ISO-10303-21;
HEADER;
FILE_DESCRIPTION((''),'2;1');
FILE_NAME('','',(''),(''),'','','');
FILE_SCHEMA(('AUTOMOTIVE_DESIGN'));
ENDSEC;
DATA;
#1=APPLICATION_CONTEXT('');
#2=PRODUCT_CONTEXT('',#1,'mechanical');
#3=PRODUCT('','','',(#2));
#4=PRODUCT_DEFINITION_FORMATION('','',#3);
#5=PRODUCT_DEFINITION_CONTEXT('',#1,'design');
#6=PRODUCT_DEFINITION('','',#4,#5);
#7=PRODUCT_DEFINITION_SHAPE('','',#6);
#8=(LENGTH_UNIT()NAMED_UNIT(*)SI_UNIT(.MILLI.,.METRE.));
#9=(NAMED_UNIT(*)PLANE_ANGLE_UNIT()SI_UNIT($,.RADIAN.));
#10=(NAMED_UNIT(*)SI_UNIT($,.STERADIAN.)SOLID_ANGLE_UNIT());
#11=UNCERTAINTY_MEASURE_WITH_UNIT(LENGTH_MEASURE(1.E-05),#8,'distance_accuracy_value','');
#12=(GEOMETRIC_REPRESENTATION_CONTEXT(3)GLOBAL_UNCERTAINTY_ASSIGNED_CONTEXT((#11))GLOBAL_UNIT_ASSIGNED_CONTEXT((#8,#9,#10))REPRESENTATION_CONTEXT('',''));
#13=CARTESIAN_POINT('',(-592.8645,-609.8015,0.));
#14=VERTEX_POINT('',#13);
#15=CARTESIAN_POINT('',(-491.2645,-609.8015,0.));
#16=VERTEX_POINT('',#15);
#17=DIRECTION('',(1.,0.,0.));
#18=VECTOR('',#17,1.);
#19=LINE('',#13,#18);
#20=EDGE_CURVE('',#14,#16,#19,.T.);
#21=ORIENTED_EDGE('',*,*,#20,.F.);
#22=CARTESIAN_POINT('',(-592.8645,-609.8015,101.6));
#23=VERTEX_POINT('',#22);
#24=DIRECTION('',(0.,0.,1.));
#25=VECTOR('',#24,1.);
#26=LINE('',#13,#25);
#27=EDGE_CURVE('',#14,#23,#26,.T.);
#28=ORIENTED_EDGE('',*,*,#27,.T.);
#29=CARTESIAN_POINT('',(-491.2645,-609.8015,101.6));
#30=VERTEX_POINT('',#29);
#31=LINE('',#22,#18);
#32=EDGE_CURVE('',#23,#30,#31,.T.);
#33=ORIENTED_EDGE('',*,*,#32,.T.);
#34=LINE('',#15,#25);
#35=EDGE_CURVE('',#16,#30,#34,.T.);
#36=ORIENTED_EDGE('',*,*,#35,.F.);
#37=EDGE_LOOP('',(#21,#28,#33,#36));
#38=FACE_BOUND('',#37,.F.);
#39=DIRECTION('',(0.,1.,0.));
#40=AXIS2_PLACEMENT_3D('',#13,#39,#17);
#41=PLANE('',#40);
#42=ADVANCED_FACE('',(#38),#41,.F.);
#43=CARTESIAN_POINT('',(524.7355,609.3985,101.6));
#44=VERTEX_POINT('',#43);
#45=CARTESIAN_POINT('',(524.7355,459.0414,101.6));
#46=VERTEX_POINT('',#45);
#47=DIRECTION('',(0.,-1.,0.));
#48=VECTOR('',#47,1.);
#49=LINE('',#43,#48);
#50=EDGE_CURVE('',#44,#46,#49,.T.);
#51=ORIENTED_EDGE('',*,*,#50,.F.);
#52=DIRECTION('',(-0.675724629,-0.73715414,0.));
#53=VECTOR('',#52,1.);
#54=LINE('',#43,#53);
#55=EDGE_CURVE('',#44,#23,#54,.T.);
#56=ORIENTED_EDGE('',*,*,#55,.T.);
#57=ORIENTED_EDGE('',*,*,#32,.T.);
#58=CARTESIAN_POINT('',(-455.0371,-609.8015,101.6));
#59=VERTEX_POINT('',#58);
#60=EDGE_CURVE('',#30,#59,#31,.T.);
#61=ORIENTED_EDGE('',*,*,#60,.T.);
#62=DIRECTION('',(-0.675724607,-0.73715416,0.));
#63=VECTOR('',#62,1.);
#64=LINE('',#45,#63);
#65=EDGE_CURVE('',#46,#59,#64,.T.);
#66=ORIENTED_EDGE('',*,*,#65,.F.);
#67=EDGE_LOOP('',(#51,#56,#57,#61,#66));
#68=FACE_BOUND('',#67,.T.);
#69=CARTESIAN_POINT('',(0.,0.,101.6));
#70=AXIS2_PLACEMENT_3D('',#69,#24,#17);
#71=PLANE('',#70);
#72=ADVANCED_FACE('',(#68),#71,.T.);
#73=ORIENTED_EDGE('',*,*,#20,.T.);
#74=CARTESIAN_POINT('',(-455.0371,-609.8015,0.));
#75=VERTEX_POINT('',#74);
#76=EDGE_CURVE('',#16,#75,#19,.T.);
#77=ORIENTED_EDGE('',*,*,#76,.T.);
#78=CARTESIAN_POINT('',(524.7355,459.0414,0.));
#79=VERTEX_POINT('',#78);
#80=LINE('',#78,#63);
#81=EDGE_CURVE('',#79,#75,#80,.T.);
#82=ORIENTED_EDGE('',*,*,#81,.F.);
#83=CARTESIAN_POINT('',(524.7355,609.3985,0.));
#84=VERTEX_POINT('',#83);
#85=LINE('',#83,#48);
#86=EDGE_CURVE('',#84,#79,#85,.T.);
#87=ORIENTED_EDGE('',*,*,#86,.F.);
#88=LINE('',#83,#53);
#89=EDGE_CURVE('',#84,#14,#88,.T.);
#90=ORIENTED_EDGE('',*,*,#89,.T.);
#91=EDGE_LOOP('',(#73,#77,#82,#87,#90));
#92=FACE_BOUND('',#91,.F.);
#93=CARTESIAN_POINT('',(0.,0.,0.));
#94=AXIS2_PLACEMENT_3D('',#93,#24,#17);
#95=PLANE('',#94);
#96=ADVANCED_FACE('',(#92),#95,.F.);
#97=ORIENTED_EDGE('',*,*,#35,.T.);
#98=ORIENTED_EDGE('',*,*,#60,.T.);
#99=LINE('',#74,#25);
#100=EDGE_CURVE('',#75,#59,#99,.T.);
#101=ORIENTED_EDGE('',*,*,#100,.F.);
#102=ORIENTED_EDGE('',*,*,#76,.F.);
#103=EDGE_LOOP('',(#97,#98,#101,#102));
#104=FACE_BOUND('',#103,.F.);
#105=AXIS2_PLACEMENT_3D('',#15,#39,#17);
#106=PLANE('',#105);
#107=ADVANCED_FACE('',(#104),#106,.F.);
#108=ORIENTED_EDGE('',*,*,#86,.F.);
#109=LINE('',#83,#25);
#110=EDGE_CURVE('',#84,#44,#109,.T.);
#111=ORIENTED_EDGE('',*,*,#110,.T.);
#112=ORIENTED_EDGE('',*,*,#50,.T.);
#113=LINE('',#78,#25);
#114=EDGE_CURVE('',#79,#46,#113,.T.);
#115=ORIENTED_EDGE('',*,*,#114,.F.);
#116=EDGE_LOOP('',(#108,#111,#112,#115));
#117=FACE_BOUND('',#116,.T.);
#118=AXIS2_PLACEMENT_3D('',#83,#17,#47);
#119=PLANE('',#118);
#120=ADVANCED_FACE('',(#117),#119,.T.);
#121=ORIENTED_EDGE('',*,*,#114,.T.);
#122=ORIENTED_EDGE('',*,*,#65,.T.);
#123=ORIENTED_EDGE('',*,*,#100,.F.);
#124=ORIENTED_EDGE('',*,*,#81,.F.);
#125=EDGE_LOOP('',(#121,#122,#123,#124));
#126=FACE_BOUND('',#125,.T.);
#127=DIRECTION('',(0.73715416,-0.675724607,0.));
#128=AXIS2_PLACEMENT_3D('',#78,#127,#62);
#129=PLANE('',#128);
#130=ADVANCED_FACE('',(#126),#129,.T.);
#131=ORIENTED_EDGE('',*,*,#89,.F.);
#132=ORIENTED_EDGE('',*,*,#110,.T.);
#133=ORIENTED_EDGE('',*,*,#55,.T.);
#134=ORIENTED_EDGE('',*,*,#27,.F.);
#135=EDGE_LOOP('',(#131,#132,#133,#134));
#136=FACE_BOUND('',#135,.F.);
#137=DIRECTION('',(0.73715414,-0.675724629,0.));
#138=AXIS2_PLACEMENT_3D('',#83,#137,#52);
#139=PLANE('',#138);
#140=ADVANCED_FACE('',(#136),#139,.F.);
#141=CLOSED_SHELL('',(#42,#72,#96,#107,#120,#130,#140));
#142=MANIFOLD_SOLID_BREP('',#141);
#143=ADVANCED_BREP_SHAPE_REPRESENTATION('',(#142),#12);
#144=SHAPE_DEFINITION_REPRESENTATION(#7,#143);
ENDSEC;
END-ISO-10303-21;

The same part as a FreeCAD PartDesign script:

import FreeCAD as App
import Part
import Sketcher

V = App.Vector
Q = App.Units.Quantity


def add_polygon(sketch, points):
    """Adds a closed chain of lines whose ends are joined by coincident constraints."""
    first, n = sketch.GeometryCount, len(points)
    for a, b in zip(points, points[1:] + points[:1]):
        sketch.addGeometry(Part.LineSegment(App.Vector(*a, 0), App.Vector(*b, 0)), False)
    for i in range(n):
        sketch.addConstraint(Sketcher.Constraint("Coincident", first + i, 2, first + (i + 1) % n, 1))

doc = App.newDocument("Part")
params = doc.addObject("Spreadsheet::Sheet", "Params")
for row, (alias, value) in enumerate([
    ("pad1_length", "4 in"),
], start=1):
    params.set(f"A{row}", alias)
    params.set(f"B{row}", "=" + value)
    params.setAlias(f"B{row}", alias)

body = doc.addObject("PartDesign::Body", "Body")

# Sketch on XY plane
sketch1 = body.newObject("Sketcher::SketchObject", "Sketch")
sketch1.AttachmentSupport = (doc.getObject("XY_Plane"), [""])
sketch1.MapMode = "FlatFace"
add_polygon(sketch1, [(525, 609), (-593, -610), (-455, -610), (525, 459)])  # lines 0-3
sketch1.addConstraint([
    Sketcher.Constraint("Horizontal", 1),
    Sketcher.Constraint("Vertical", 3),
    Sketcher.Constraint("Parallel", 0, 2),
    Sketcher.Constraint("DistanceX", 0, 2, 2, 2, Q("44 in")),
    Sketcher.Constraint("DistanceY", 1, 2, 3, 2, Q("48 in")),
    Sketcher.Constraint("DistanceX", 1, 1, 1, 2, Q("137.8274 mm")),
    Sketcher.Constraint("DistanceY", -1, 1, 2, 2, Q("18.0725 in")),
    Sketcher.Constraint("DistanceX", 0, 2, -1, 1, Q("592.8645 mm")),
])
pad1 = body.newObject("PartDesign::Pad", "Pad")
pad1.Profile = sketch1
pad1.setExpression("Length", "Params.pad1_length")

doc.recompute()
